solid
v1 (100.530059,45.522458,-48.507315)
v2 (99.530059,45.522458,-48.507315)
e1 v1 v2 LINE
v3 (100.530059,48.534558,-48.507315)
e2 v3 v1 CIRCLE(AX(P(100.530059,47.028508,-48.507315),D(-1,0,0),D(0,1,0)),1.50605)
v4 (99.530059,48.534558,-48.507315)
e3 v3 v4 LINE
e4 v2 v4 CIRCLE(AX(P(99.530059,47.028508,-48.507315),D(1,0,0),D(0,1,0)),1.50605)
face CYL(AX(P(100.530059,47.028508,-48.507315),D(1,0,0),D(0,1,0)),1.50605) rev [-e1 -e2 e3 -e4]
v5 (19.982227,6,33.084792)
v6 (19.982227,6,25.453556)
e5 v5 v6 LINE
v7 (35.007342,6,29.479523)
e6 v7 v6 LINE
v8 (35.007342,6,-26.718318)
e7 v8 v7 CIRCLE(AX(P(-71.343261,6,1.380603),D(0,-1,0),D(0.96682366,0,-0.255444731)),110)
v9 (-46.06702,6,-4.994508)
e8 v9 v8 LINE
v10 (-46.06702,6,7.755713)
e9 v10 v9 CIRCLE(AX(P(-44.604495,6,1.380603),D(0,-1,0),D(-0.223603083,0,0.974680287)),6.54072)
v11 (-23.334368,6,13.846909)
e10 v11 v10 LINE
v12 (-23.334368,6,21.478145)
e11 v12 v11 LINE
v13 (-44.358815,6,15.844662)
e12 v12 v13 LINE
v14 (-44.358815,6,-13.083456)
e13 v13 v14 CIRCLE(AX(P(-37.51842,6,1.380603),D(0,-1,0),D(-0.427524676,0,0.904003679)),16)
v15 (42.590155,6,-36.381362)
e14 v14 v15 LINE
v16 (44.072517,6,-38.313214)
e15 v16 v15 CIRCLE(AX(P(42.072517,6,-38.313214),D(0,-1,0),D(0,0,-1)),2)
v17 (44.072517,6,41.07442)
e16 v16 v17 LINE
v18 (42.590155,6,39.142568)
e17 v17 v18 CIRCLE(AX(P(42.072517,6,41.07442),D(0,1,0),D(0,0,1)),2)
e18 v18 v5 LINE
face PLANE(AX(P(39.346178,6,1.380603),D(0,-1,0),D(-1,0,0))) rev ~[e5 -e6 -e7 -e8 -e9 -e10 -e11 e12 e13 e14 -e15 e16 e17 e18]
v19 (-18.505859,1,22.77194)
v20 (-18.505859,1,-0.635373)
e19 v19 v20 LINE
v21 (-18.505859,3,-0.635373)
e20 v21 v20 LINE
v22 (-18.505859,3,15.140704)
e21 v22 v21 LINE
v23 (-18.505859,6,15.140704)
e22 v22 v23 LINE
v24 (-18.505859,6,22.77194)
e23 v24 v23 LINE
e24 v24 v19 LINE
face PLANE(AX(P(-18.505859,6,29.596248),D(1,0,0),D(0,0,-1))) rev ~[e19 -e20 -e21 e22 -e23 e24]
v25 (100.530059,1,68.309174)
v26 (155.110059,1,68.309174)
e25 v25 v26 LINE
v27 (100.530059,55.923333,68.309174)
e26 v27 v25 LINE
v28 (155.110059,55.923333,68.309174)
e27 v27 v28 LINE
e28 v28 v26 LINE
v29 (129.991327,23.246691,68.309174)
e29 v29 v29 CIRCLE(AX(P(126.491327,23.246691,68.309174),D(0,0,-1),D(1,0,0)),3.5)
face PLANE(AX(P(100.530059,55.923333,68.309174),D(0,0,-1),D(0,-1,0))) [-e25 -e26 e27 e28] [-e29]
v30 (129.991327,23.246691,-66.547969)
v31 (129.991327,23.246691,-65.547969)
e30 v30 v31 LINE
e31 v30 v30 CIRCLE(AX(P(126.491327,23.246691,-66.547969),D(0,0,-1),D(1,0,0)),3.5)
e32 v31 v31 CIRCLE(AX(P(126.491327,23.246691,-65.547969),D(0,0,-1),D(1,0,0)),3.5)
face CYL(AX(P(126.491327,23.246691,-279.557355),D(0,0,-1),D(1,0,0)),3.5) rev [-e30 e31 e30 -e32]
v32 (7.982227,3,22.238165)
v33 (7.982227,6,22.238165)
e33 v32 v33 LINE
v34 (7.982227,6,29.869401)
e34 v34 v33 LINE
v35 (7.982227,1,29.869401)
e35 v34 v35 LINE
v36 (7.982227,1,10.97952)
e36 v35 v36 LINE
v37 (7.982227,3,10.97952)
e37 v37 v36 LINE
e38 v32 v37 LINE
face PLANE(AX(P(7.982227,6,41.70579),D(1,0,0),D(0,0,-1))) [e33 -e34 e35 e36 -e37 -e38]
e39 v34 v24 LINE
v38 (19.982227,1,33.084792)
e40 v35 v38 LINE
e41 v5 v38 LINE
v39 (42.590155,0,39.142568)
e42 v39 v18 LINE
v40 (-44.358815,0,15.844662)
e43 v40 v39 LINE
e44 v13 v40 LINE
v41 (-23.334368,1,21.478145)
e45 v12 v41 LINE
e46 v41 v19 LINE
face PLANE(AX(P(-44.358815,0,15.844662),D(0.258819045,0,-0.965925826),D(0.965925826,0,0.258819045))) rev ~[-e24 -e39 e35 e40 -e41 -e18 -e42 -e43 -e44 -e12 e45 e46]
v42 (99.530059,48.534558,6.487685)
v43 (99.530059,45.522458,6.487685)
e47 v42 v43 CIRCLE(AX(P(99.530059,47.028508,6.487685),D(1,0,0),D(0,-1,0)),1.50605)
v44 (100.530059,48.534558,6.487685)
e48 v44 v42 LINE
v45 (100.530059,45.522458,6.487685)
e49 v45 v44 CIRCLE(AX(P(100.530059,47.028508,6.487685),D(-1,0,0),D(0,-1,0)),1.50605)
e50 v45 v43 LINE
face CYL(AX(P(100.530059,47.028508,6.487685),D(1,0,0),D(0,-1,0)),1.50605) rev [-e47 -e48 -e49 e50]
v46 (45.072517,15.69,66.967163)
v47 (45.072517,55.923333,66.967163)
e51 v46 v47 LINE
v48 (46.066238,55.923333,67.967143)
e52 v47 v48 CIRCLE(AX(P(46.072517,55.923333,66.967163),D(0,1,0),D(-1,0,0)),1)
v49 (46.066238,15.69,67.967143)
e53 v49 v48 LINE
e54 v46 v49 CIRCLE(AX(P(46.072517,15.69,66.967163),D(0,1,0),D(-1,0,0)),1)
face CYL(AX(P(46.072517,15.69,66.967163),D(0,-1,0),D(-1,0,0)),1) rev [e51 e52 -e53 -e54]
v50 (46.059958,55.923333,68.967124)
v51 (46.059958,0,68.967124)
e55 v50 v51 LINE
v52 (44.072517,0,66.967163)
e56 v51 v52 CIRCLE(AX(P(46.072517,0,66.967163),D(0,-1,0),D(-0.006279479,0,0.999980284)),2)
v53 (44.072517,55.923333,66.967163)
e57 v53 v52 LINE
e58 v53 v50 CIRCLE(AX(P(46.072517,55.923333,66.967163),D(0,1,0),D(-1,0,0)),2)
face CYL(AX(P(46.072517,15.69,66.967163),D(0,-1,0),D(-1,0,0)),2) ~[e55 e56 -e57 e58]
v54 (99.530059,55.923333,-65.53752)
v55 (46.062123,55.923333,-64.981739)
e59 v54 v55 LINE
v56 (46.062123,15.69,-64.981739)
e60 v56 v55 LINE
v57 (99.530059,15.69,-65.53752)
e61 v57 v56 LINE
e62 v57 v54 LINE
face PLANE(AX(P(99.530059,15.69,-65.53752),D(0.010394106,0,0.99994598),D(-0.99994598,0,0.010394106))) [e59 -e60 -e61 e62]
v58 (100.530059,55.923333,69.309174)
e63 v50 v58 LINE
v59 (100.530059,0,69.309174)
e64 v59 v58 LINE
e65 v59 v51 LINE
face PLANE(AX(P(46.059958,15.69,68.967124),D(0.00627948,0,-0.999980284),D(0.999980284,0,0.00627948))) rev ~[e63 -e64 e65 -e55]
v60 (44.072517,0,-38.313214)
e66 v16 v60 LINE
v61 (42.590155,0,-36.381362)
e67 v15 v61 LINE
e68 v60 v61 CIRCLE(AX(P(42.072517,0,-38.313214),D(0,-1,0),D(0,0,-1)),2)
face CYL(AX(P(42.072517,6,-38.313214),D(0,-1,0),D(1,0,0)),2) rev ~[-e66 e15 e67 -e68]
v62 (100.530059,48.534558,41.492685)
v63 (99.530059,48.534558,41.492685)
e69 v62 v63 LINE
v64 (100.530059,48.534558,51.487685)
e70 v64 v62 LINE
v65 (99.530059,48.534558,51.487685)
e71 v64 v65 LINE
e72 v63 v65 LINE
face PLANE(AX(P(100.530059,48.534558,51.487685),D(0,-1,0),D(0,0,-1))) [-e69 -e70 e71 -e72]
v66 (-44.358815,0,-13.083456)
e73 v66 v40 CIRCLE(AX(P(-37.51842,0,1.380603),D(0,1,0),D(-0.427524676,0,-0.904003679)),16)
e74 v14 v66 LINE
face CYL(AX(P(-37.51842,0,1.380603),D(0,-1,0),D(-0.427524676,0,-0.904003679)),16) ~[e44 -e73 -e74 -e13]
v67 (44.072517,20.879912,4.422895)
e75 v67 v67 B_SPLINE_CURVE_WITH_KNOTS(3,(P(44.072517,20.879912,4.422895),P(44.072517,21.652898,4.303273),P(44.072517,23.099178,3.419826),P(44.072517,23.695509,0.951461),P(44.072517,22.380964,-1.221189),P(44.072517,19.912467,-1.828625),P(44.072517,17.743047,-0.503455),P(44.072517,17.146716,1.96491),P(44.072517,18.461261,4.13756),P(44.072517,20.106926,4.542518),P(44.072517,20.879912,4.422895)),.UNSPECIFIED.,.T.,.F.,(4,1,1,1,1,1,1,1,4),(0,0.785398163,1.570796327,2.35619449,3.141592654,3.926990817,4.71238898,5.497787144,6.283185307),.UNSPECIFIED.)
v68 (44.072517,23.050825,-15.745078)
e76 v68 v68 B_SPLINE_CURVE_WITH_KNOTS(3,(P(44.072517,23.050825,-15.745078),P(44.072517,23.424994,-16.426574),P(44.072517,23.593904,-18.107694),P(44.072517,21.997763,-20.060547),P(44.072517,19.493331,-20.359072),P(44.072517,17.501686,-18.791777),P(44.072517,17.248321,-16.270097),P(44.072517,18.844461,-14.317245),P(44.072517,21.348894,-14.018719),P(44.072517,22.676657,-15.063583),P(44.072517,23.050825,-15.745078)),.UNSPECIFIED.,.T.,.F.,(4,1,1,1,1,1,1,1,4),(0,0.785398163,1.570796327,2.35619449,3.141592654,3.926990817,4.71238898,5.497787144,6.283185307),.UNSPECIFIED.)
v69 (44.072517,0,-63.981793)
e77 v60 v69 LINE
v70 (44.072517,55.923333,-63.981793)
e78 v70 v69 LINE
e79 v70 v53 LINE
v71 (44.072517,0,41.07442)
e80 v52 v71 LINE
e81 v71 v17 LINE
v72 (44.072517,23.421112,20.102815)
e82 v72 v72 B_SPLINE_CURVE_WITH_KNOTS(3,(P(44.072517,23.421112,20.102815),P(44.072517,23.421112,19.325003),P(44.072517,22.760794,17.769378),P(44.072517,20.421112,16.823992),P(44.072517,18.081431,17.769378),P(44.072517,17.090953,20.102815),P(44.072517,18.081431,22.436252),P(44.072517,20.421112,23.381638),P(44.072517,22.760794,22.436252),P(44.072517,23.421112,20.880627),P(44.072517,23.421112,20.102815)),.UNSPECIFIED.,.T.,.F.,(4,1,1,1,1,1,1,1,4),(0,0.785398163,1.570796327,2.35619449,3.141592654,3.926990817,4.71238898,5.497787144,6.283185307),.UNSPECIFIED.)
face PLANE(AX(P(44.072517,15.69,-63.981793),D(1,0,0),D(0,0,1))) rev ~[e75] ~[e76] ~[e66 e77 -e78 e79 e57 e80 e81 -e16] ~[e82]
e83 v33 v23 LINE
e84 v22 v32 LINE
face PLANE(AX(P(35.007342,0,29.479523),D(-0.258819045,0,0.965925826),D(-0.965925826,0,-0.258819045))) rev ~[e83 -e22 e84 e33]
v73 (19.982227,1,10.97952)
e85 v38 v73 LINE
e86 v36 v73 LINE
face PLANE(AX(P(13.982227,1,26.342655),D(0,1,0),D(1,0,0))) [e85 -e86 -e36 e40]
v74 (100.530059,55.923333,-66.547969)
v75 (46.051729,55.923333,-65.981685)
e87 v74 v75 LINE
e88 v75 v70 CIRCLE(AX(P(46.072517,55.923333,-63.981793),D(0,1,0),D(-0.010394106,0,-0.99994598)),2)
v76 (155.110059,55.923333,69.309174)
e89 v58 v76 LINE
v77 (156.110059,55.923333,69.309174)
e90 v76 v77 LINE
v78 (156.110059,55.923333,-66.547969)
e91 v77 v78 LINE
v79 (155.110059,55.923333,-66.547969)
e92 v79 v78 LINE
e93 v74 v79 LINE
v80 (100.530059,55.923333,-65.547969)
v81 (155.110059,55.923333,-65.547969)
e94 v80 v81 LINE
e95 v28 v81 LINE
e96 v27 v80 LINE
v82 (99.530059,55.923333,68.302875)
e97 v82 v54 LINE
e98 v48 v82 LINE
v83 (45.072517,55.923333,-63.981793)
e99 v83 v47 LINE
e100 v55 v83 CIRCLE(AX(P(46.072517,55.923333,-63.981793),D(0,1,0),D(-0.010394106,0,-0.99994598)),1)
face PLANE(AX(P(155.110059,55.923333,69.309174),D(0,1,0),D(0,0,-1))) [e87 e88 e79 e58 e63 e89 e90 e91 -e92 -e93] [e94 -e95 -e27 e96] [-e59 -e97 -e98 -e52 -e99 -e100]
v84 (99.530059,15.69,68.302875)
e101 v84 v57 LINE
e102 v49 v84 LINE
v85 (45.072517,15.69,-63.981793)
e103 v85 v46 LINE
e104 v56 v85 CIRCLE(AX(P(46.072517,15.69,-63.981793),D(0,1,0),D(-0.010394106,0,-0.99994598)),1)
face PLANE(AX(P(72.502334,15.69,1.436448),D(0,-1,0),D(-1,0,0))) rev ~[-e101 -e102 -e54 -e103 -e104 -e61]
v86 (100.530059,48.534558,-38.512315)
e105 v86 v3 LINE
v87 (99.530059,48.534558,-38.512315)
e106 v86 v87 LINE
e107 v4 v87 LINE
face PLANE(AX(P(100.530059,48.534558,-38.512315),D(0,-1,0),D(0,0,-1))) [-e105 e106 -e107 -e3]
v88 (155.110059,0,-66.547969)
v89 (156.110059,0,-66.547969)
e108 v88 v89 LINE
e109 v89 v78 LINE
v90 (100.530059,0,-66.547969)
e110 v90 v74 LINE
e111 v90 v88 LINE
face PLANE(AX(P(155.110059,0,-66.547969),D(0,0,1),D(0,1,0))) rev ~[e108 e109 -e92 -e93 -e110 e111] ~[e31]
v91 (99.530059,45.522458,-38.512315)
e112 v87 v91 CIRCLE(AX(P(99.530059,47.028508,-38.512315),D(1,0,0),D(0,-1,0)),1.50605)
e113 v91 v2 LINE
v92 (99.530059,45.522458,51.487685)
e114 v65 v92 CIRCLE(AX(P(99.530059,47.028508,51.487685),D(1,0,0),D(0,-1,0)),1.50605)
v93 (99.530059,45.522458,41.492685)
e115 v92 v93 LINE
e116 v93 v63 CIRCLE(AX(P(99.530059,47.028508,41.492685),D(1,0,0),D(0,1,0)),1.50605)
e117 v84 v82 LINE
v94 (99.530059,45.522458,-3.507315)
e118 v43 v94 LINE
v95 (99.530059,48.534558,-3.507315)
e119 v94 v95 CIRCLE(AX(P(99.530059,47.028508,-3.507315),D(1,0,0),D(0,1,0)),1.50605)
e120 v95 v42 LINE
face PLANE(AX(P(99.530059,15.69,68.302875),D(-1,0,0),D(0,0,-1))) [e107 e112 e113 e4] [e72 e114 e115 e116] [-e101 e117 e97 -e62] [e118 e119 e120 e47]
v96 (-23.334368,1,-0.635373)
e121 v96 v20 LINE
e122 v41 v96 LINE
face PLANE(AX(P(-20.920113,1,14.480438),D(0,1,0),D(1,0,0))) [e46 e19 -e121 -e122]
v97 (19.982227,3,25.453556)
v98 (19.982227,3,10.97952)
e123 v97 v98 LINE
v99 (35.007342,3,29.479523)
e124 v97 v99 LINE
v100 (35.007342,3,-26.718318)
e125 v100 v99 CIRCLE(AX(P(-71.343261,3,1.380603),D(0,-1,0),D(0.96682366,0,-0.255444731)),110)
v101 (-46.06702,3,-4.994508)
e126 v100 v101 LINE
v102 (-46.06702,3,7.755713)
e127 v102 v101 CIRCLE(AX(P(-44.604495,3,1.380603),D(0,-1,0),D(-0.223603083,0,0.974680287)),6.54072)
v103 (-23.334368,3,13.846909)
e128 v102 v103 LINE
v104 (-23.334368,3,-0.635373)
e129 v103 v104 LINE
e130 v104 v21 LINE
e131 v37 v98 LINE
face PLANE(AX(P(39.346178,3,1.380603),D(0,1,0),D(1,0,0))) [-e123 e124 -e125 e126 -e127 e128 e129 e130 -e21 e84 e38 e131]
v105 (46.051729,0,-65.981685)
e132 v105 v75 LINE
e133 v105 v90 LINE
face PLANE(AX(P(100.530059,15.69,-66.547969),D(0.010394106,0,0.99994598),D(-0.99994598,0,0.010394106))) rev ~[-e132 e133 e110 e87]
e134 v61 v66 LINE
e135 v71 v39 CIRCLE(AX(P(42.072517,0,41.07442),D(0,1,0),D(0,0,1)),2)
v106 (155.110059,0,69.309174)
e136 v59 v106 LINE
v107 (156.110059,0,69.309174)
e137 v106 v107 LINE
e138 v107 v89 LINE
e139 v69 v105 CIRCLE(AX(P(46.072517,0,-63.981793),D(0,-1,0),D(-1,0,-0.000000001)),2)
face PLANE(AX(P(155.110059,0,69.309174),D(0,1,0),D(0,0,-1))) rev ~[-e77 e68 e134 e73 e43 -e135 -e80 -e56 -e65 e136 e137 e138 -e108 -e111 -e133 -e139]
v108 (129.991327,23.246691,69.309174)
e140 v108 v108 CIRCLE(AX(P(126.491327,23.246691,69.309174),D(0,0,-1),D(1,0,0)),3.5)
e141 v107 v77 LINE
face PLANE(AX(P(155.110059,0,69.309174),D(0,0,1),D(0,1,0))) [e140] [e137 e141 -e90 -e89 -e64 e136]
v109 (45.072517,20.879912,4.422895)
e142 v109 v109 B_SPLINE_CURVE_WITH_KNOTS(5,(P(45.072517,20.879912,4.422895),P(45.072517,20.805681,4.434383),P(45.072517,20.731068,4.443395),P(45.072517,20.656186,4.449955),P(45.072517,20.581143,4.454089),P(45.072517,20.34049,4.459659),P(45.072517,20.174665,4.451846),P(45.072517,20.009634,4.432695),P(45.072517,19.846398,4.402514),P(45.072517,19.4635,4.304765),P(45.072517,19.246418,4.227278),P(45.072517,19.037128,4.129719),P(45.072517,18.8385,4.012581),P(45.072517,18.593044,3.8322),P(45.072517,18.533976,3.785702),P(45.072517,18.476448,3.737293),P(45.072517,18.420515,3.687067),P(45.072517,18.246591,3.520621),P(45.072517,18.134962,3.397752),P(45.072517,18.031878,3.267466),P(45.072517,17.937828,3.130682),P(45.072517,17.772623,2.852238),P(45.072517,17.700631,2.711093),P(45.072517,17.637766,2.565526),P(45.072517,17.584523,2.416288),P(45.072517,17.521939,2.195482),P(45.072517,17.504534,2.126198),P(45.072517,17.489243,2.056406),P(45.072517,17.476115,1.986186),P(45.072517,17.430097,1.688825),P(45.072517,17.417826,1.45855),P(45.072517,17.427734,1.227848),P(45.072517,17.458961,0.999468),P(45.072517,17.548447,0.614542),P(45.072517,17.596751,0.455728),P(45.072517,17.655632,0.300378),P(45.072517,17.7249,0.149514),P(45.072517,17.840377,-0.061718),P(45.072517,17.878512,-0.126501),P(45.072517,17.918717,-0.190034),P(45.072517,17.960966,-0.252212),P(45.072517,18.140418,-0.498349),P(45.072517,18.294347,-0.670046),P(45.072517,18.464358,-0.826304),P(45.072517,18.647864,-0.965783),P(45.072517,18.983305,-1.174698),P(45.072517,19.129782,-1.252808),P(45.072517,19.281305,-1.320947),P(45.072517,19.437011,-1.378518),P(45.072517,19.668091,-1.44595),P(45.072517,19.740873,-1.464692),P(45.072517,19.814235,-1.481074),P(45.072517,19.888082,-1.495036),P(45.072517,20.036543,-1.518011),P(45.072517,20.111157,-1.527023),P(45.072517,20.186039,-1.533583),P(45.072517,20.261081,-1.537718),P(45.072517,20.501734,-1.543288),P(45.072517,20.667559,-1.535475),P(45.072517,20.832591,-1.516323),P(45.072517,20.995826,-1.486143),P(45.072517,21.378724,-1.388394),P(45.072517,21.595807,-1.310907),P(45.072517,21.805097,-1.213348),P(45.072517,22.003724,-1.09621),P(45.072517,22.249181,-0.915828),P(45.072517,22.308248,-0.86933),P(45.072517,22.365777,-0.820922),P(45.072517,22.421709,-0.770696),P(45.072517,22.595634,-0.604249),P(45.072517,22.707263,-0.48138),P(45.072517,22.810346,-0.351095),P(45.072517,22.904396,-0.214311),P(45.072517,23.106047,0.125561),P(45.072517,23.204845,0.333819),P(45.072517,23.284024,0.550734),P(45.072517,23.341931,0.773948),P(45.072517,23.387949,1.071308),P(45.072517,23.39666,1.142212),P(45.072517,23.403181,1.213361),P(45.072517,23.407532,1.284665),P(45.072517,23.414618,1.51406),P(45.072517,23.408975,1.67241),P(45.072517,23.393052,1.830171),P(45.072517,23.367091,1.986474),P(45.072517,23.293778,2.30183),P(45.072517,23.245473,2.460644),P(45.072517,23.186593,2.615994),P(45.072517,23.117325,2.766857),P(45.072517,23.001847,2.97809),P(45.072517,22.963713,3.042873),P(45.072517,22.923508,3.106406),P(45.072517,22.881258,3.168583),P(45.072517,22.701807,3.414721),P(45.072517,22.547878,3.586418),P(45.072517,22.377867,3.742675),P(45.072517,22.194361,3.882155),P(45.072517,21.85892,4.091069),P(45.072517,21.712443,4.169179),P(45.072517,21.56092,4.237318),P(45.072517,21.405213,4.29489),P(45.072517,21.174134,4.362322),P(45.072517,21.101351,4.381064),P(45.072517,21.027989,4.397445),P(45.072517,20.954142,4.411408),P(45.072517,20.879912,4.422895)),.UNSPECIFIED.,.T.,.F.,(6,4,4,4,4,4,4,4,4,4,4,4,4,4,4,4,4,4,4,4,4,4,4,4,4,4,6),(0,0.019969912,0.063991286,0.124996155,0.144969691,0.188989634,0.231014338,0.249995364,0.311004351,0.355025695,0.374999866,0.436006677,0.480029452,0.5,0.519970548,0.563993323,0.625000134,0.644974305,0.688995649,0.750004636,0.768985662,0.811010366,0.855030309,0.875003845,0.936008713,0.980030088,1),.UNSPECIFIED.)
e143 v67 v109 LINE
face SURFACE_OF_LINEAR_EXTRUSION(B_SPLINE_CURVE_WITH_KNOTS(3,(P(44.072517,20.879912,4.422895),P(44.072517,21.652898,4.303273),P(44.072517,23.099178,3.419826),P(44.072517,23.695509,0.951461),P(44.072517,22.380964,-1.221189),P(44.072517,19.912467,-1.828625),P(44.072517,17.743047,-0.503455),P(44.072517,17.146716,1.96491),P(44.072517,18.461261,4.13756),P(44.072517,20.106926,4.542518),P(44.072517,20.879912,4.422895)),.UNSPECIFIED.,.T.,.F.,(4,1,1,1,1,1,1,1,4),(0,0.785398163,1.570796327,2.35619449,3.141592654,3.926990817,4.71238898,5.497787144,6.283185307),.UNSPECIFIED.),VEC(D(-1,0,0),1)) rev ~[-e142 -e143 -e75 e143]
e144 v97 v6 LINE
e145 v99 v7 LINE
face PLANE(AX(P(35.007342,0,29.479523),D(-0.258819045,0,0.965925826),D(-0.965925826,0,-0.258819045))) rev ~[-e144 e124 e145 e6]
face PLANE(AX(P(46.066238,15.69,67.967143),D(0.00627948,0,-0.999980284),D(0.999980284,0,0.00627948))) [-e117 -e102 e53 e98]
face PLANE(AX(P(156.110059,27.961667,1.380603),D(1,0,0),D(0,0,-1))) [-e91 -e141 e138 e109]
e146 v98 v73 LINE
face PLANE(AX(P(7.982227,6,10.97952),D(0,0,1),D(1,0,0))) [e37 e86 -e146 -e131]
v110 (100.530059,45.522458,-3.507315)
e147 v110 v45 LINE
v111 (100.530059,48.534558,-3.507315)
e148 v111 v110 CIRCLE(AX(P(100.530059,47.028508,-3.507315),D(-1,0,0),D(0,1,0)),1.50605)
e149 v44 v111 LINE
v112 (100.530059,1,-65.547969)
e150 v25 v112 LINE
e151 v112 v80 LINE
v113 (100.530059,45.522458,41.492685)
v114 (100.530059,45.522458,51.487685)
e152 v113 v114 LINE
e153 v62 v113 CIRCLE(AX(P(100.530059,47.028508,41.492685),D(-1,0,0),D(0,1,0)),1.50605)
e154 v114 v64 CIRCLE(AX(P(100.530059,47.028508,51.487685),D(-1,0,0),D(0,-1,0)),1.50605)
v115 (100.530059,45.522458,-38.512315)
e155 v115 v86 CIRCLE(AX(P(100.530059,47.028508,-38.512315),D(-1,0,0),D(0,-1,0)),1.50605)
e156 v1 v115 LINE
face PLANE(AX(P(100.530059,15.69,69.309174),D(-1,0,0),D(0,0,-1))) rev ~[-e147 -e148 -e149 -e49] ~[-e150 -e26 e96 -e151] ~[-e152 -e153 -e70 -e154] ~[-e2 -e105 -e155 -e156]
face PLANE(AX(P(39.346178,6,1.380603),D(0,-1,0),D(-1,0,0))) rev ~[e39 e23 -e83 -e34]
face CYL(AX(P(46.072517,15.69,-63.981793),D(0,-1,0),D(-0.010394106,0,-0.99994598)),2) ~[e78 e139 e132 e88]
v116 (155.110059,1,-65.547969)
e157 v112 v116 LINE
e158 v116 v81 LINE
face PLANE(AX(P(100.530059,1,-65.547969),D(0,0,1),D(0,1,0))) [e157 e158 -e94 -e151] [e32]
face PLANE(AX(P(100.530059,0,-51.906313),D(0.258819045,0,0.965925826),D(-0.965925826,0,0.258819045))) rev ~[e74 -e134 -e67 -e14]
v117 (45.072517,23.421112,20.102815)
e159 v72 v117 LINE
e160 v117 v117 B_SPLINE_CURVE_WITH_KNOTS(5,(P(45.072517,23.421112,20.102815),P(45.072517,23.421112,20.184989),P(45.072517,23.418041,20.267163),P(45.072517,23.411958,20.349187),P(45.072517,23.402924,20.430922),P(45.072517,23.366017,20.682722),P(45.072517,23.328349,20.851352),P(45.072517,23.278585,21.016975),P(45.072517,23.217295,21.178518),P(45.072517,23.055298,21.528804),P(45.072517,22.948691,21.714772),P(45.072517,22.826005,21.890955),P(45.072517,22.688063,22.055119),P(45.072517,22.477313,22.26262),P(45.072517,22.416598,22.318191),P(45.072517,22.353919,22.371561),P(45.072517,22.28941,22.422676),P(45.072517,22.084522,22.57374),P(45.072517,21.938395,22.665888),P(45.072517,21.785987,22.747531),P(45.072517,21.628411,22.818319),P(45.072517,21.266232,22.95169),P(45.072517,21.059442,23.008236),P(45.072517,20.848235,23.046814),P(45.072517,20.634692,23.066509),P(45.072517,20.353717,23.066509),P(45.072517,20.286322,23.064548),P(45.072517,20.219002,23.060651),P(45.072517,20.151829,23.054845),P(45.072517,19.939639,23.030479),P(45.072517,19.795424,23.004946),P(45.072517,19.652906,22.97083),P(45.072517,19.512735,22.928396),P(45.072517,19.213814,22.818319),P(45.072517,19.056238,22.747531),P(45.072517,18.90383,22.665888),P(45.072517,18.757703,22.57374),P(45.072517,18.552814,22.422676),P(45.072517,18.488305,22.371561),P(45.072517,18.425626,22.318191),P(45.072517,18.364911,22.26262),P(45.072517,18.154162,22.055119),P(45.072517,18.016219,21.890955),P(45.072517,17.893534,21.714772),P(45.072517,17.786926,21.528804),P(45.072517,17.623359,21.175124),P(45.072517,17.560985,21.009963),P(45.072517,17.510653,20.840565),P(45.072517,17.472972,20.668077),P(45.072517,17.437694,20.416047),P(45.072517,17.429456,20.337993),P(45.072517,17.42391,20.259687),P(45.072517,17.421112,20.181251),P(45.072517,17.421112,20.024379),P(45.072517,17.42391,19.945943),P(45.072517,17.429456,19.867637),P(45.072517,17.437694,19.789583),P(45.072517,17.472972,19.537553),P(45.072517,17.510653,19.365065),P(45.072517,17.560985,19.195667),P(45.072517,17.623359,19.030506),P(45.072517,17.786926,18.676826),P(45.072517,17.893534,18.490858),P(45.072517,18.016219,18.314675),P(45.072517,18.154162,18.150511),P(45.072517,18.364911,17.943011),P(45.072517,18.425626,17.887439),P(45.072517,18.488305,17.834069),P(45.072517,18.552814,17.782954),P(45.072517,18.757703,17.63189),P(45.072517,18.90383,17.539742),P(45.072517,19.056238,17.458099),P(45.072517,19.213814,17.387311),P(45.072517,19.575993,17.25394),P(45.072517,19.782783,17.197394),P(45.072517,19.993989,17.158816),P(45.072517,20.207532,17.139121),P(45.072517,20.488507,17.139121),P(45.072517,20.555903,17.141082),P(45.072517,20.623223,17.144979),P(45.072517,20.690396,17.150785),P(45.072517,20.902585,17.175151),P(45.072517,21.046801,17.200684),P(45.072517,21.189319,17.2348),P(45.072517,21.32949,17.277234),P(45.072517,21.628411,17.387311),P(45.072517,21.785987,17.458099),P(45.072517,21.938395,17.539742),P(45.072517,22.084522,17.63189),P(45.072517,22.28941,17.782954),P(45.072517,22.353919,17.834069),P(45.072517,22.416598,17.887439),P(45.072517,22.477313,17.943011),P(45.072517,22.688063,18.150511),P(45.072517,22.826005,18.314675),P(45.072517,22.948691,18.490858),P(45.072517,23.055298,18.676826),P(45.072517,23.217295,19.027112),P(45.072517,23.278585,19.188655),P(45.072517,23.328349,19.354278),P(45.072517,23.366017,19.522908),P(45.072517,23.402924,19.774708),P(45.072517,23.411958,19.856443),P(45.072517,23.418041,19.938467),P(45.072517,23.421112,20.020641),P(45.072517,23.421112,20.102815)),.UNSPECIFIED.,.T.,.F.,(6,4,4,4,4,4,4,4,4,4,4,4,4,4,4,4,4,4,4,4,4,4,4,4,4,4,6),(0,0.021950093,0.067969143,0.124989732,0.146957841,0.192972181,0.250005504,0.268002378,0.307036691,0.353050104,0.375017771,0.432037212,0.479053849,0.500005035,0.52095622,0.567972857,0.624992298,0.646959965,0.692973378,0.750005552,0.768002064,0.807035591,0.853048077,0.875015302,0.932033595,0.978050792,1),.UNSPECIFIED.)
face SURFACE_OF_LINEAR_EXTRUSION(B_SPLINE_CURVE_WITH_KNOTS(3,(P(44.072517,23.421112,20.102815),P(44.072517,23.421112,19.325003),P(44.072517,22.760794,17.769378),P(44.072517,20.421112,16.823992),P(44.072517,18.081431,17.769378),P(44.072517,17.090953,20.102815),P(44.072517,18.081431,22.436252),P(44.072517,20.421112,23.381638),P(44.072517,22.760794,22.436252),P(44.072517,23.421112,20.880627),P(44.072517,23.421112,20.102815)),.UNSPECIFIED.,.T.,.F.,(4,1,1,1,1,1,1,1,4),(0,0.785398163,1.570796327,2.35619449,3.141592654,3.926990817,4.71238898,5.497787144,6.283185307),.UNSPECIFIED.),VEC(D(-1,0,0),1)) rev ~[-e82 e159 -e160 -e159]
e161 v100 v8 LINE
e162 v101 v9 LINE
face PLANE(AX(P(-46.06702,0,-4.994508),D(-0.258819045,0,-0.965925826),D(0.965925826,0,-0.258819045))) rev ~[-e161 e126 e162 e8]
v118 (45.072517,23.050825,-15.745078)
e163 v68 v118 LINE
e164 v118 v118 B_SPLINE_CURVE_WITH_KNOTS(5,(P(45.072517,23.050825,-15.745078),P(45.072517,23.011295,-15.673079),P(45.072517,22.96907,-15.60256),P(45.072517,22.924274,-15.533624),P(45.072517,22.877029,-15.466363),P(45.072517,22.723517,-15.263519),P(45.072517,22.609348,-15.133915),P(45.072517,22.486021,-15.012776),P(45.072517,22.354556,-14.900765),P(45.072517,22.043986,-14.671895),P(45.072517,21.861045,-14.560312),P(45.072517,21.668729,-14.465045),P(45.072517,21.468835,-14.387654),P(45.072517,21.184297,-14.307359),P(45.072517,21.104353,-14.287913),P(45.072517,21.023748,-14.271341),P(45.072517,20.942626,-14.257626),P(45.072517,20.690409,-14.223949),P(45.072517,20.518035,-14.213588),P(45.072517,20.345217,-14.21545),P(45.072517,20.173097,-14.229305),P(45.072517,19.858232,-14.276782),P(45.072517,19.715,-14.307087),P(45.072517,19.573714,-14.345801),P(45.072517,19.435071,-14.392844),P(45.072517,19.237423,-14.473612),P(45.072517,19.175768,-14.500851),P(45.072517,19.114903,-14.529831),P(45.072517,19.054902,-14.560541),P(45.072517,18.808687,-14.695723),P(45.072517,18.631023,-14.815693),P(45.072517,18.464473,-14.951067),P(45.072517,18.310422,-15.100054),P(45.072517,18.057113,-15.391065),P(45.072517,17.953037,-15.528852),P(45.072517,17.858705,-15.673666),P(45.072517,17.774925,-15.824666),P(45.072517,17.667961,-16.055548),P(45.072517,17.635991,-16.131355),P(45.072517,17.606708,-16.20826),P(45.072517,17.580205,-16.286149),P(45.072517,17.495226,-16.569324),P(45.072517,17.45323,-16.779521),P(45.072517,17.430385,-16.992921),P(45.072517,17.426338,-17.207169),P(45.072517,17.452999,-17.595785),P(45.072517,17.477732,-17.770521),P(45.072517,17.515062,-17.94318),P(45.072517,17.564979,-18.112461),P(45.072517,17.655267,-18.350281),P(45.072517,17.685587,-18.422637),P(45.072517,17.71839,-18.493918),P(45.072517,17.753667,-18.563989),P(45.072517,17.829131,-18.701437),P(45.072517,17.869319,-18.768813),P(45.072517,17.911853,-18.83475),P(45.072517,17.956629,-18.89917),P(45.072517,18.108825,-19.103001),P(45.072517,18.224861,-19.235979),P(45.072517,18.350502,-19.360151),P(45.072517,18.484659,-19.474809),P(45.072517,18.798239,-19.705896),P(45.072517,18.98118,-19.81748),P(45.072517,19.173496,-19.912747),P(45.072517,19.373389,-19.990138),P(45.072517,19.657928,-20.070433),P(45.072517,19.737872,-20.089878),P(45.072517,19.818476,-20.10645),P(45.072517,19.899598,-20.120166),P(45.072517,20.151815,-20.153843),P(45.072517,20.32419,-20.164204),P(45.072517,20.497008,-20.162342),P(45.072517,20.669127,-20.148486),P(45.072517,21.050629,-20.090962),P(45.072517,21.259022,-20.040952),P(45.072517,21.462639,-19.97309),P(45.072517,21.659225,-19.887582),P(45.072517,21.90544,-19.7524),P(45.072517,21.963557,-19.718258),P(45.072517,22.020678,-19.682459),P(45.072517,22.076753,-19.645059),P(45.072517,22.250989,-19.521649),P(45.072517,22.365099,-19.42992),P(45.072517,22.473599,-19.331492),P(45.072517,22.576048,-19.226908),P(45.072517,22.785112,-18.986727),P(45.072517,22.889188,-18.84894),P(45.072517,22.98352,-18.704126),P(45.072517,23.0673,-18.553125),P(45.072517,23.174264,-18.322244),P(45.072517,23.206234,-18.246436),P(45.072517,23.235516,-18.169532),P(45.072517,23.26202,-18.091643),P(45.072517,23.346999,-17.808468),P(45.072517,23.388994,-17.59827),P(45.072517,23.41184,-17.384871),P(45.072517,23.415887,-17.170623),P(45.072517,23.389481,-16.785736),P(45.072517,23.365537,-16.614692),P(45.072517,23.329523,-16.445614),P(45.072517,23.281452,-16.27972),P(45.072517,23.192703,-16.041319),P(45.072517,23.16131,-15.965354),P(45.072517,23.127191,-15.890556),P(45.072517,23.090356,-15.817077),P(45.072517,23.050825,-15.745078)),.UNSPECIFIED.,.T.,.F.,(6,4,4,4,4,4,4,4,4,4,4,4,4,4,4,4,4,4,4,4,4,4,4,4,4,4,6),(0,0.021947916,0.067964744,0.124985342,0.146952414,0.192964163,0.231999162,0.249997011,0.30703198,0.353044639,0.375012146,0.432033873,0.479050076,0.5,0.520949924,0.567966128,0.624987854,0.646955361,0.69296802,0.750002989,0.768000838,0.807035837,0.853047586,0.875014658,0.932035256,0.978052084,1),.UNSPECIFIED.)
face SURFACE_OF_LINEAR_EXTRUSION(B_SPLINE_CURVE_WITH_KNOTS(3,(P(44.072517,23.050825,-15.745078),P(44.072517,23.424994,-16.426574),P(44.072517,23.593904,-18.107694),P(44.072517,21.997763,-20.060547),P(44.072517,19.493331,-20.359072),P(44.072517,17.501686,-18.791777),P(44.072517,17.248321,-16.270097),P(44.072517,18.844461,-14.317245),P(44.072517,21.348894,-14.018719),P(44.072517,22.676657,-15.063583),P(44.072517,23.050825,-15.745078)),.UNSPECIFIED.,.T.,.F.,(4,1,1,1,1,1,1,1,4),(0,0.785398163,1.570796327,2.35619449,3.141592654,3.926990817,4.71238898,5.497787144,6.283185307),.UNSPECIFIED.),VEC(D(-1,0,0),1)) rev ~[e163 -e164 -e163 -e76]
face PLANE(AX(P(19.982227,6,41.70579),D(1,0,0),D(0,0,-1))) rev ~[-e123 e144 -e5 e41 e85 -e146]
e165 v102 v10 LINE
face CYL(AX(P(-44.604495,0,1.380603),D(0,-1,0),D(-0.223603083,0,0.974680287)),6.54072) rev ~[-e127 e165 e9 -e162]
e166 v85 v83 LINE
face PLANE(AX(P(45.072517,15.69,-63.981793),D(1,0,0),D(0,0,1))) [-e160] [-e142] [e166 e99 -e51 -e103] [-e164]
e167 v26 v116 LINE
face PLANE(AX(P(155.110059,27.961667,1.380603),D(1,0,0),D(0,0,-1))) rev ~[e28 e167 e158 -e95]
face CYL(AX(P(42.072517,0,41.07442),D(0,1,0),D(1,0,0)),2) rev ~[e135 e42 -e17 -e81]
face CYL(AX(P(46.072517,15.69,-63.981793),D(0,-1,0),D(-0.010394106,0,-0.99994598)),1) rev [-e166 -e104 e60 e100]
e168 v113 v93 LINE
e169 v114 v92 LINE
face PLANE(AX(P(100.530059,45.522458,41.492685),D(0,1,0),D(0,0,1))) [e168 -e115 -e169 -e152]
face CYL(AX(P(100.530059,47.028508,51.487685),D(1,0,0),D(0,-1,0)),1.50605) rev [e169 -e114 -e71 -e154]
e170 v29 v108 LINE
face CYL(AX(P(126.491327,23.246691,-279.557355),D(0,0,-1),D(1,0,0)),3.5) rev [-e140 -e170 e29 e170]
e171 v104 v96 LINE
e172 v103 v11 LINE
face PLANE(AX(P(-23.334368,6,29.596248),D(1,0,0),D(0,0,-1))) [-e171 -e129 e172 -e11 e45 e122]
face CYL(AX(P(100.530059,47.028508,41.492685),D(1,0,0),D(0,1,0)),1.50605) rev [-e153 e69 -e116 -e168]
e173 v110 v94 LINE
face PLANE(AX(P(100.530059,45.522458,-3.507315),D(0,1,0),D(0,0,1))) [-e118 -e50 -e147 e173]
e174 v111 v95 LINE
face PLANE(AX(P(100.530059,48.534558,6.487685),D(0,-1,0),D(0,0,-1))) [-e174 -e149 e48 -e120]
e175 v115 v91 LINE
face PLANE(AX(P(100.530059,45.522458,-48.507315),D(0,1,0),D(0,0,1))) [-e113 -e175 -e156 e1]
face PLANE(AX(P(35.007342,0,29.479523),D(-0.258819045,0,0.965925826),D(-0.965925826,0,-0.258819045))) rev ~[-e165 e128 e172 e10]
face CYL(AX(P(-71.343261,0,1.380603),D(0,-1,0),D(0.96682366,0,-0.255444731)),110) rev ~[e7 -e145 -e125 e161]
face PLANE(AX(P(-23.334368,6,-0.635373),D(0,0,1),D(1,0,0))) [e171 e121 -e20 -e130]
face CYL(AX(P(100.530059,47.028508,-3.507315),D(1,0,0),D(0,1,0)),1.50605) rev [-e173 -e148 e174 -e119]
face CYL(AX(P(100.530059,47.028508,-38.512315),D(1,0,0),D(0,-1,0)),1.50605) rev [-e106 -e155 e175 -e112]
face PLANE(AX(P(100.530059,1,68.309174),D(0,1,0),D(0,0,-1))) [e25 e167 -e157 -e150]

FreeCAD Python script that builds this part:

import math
import FreeCAD as App
import Part
import Sketcher
from FreeCAD import Vector
Q = App.Units.Quantity


def edges_at(feature, points):
    """Names of the edges that pass closest to the given points."""
    edges = feature.Shape.Edges
    near = lambda p: min(range(len(edges)), key=lambda i: edges[i].distToShape(Part.Vertex(*p))[0])
    return sorted({f"Edge{near(p) + 1}" for p in points})


def add_polygon(sketch, points):
    """Adds a closed chain of lines whose ends are joined by coincident constraints."""
    first, n = sketch.GeometryCount, len(points)
    for a, b in zip(points, points[1:] + points[:1]):
        sketch.addGeometry(Part.LineSegment(App.Vector(*a, 0), App.Vector(*b, 0)), False)
    for i in range(n):
        sketch.addConstraint(Sketcher.Constraint("Coincident", first + i, 2, first + (i + 1) % n, 1))

doc = App.newDocument("Part")
body = doc.addObject("PartDesign::Body", "Body")

sketch1 = body.newObject("Sketcher::SketchObject", "Sketch")
sketch1.AttachmentSupport = (doc.getObject("XZ_Plane"), [""])
sketch1.MapMode = "FlatFace"
sketch1.addGeometry(Part.LineSegment(Vector(-44, 16, 0), Vector(101, 55, 0)), False)
sketch1.addGeometry(Part.LineSegment(Vector(101, 55, 0), Vector(101, -52, 0)), False)
sketch1.addGeometry(Part.LineSegment(Vector(101, -52, 0), Vector(-44, -13, 0)), False)
sketch1.addGeometry(Part.ArcOfCircle(Part.Circle(Vector(-38, 1, 0), Vector(0, 0, 1), 16), math.radians(115), math.radians(245)), False)
sketch1.addConstraint(Sketcher.Constraint("Coincident", 0, 2, 1, 1))
sketch1.addConstraint(Sketcher.Constraint("Coincident", 1, 2, 2, 1))
sketch1.addConstraint(Sketcher.Constraint("Coincident", 2, 2, 3, 2))
sketch1.addConstraint(Sketcher.Constraint("Coincident", 3, 1, 0, 1))
sketch1.addConstraint(Sketcher.Constraint("Vertical", 1))
sketch1.addConstraint(Sketcher.Constraint("Vertical", 2, 2, 3, 1))
sketch1.addConstraint(Sketcher.Constraint("Equal", 0, 2))
sketch1.addConstraint(Sketcher.Constraint("Radius", 3, Q("16 mm")))
sketch1.addConstraint(Sketcher.Constraint("Angle", 0, Q("15 deg")))
sketch1.addConstraint(Sketcher.Constraint("Distance", 0, Q("150 mm")))
sketch1.addConstraint(Sketcher.Constraint("DistanceY", 1, 2, 1, 1, Q("106.573831 mm")))
sketch1.addConstraint(Sketcher.Constraint("DistanceX", 3, 3, -1, 1, Q("37.51842 mm")))
sketch1.addConstraint(Sketcher.Constraint("DistanceY", -1, 1, 0, 2, Q("54.667518 mm")))
pad1 = body.newObject("PartDesign::Pad", "Pad")
pad1.Profile = sketch1
pad1.Length = 3
pad1.Reversed = True

sketch2 = body.newObject("Sketcher::SketchObject", "Sketch001")
sketch2.AttachmentSupport = (doc.getObject("XZ_Plane"), [""])
sketch2.MapMode = "FlatFace"
sketch2.addGeometry(Part.LineSegment(Vector(101, -52, 0), Vector(-44, -13, 0)), False)
sketch2.addGeometry(Part.ArcOfCircle(Part.Circle(Vector(-38, 1, 0), Vector(0, 0, 1), 16), math.radians(115), math.radians(245)), False)
sketch2.addGeometry(Part.LineSegment(Vector(-44, 16, 0), Vector(101, 55, 0)), False)
sketch2.addGeometry(Part.LineSegment(Vector(101, 55, 0), Vector(101, -52, 0)), False)
sketch2.addGeometry(Part.LineSegment(Vector(-46, -5, 0), Vector(35, -27, 0)), False)
sketch2.addGeometry(Part.ArcOfCircle(Part.Circle(Vector(-71, 1, 0), Vector(0, 0, 1), 110), math.radians(-15), math.radians(15)), False)
sketch2.addGeometry(Part.LineSegment(Vector(35, 29, 0), Vector(-46, 8, 0)), False)
sketch2.addGeometry(Part.ArcOfCircle(Part.Circle(Vector(-45, 1, 0), Vector(0, 0, 1), 7), math.radians(103), math.radians(257)), False)
sketch2.addConstraint(Sketcher.Constraint("Coincident", 0, 2, 1, 2))
sketch2.addConstraint(Sketcher.Constraint("Coincident", 1, 1, 2, 1))
sketch2.addConstraint(Sketcher.Constraint("Coincident", 2, 2, 3, 1))
sketch2.addConstraint(Sketcher.Constraint("Coincident", 3, 2, 0, 1))
sketch2.addConstraint(Sketcher.Constraint("Coincident", 4, 2, 5, 1))
sketch2.addConstraint(Sketcher.Constraint("Coincident", 5, 2, 6, 1))
sketch2.addConstraint(Sketcher.Constraint("Coincident", 6, 2, 7, 1))
sketch2.addConstraint(Sketcher.Constraint("Coincident", 7, 2, 4, 1))
sketch2.addConstraint(Sketcher.Constraint("Vertical", 3))
sketch2.addConstraint(Sketcher.Constraint("Parallel", 0, 4))
sketch2.addConstraint(Sketcher.Constraint("Parallel", 2, 6))
sketch2.addConstraint(Sketcher.Constraint("Horizontal", 1, 3, 5, 3))
sketch2.addConstraint(Sketcher.Constraint("Horizontal", 5, 3, 7, 3))
sketch2.addConstraint(Sketcher.Constraint("Vertical", 0, 2, 1, 1))
sketch2.addConstraint(Sketcher.Constraint("Vertical", 4, 2, 5, 2))
sketch2.addConstraint(Sketcher.Constraint("Vertical", 6, 2, 7, 2))
sketch2.addConstraint(Sketcher.Constraint("Radius", 1, Q("16 mm")))
sketch2.addConstraint(Sketcher.Constraint("Radius", 5, Q("110 mm")))
sketch2.addConstraint(Sketcher.Constraint("Angle", 0, Q("165 deg")))
sketch2.addConstraint(Sketcher.Constraint("Distance", 0, Q("150 mm")))
sketch2.addConstraint(Sketcher.Constraint("Radius", 7, Q("6.54072 mm")))
sketch2.addConstraint(Sketcher.Constraint("DistanceY", 3, 2, 3, 1, Q("106.573831 mm")))
sketch2.addConstraint(Sketcher.Constraint("DistanceX", 6, 2, 1, 3, Q("8.548601 mm")))
sketch2.addConstraint(Sketcher.Constraint("DistanceX", 1, 3, -1, 1, Q("37.51842 mm")))
sketch2.addConstraint(Sketcher.Constraint("DistanceX", 5, 3, -1, 1, Q("71.343261 mm")))
sketch2.addConstraint(Sketcher.Constraint("DistanceY", -1, 1, 1, 1, Q("15.844662 mm")))
sketch2.addConstraint(Sketcher.Constraint("DistanceX", -1, 1, 4, 2, Q("35.007342 mm")))
pad2 = body.newObject("PartDesign::Pad", "Pad001")
pad2.Profile = sketch2
pad2.Length = 6
pad2.Reversed = True

sketch3 = body.newObject("Sketcher::SketchObject", "Sketch002")
sketch3.AttachmentSupport = (doc.getObject("XZ_Plane"), [""])
sketch3.MapMode = "FlatFace"
sketch3.AttachmentOffset = App.Placement(Vector(0, 0, -6), App.Rotation())
sketch3.addGeometry(Part.LineSegment(Vector(44.1, -64, 0), Vector(44.1, 67, 0)), False)
sketch3.addGeometry(Part.ArcOfCircle(Part.Circle(Vector(46.1, 67, 0), Vector(0, 0, 1), 2), math.radians(90), math.radians(180)), False)
sketch3.addGeometry(Part.LineSegment(Vector(46.1, 69, 0), Vector(100.5, 69.3, 0)), False)
sketch3.addGeometry(Part.LineSegment(Vector(100.5, 69.3, 0), Vector(100.5, -66.5, 0)), False)
sketch3.addGeometry(Part.LineSegment(Vector(100.5, -66.5, 0), Vector(46.1, -66, 0)), False)
sketch3.addGeometry(Part.ArcOfCircle(Part.Circle(Vector(46.1, -64, 0), Vector(0, 0, 1), 2), math.radians(-180), math.radians(-91)), False)
sketch3.addConstraint(Sketcher.Constraint("Tangent", 0, 2, 1, 2))
sketch3.addConstraint(Sketcher.Constraint("Tangent", 1, 1, 2, 1))
sketch3.addConstraint(Sketcher.Constraint("Coincident", 2, 2, 3, 1))
sketch3.addConstraint(Sketcher.Constraint("Coincident", 3, 2, 4, 1))
sketch3.addConstraint(Sketcher.Constraint("Tangent", 4, 2, 5, 2))
sketch3.addConstraint(Sketcher.Constraint("Tangent", 5, 1, 0, 1))
sketch3.addConstraint(Sketcher.Constraint("Vertical", 0))
sketch3.addConstraint(Sketcher.Constraint("Vertical", 3))
sketch3.addConstraint(Sketcher.Constraint("Equal", 1, 5))
sketch3.addConstraint(Sketcher.Constraint("Radius", 1, Q("2 mm")))
sketch3.addConstraint(Sketcher.Constraint("DistanceX", 1, 1, 2, 2, Q("54.470101 mm")))
sketch3.addConstraint(Sketcher.Constraint("DistanceY", 0, 1, 0, 2, Q("130.948956 mm")))
sketch3.addConstraint(Sketcher.Constraint("DistanceY", 3, 2, 3, 1, Q("135.857143 mm")))
sketch3.addConstraint(Sketcher.Constraint("DistanceX", -1, 1, 1, 1, Q("46.059958 mm")))
sketch3.addConstraint(Sketcher.Constraint("DistanceY", 3, 2, -1, 1, Q("66.547969 mm")))
sketch3.addConstraint(Sketcher.Constraint("DistanceX", -1, 1, 4, 2, Q("46.051729 mm")))
pad3 = body.newObject("PartDesign::Pad", "Pad002")
pad3.Profile = sketch3
pad3.Type = "TwoLengths"
pad3.Length = 9.69
pad3.Length2 = 6
pad3.Reversed = True
doc.recompute()

fillet = body.newObject("PartDesign::Fillet", "Fillet")
fillet.Base = (pad3, edges_at(pad3, [(44.073, 3, 39.54)]))
fillet.Radius = 2
doc.recompute()

fillet2 = body.newObject("PartDesign::Fillet", "Fillet001")
fillet2.Base = (fillet, edges_at(fillet, [(44.073, 3, -36.779)]))
fillet2.Radius = 2

sketch4 = body.newObject("Sketcher::SketchObject", "Sketch003")
sketch4.AttachmentSupport = (doc.getObject("XZ_Plane"), [""])
sketch4.MapMode = "FlatFace"
sketch4.AttachmentOffset = App.Placement(Vector(0, 0, -15.69), App.Rotation())
sketch4.addGeometry(Part.LineSegment(Vector(46.1, 69, 0), Vector(100.5, 69.3, 0)), False)
sketch4.addGeometry(Part.LineSegment(Vector(100.5, 69.3, 0), Vector(100.5, -66.5, 0)), False)
sketch4.addGeometry(Part.LineSegment(Vector(100.5, -66.5, 0), Vector(46.1, -66, 0)), False)
sketch4.addGeometry(Part.ArcOfCircle(Part.Circle(Vector(46.1, -64, 0), Vector(0, 0, 1), 2), math.radians(-180), math.radians(-91)), False)
sketch4.addGeometry(Part.LineSegment(Vector(44.1, -64, 0), Vector(44.1, 67, 0)), False)
sketch4.addGeometry(Part.ArcOfCircle(Part.Circle(Vector(46.1, 67, 0), Vector(0, 0, 1), 2), math.radians(90), math.radians(180)), False)
sketch4.addGeometry(Part.LineSegment(Vector(99.5, -65.5, 0), Vector(99.5, 68.3, 0)), False)
sketch4.addGeometry(Part.LineSegment(Vector(99.5, 68.3, 0), Vector(46.1, 68, 0)), False)
sketch4.addGeometry(Part.ArcOfCircle(Part.Circle(Vector(46.1, 67, 0), Vector(0, 0, 1), 1), math.radians(90), math.radians(180)), False)
sketch4.addGeometry(Part.LineSegment(Vector(45.1, 67, 0), Vector(45.1, -64, 0)), False)
sketch4.addGeometry(Part.ArcOfCircle(Part.Circle(Vector(46.1, -64, 0), Vector(0, 0, 1), 1), math.radians(-180), math.radians(-91)), False)
sketch4.addGeometry(Part.LineSegment(Vector(46.1, -65, 0), Vector(99.5, -65.5, 0)), False)
sketch4.addConstraint(Sketcher.Constraint("Coincident", 0, 2, 1, 1))
sketch4.addConstraint(Sketcher.Constraint("Coincident", 1, 2, 2, 1))
sketch4.addConstraint(Sketcher.Constraint("Tangent", 2, 2, 3, 2))
sketch4.addConstraint(Sketcher.Constraint("Tangent", 3, 1, 4, 1))
sketch4.addConstraint(Sketcher.Constraint("Tangent", 4, 2, 5, 2))
sketch4.addConstraint(Sketcher.Constraint("Tangent", 5, 1, 0, 1))
sketch4.addConstraint(Sketcher.Constraint("Coincident", 6, 2, 7, 1))
sketch4.addConstraint(Sketcher.Constraint("Tangent", 7, 2, 8, 1))
sketch4.addConstraint(Sketcher.Constraint("Tangent", 8, 2, 9, 1))
sketch4.addConstraint(Sketcher.Constraint("Tangent", 9, 2, 10, 1))
sketch4.addConstraint(Sketcher.Constraint("Tangent", 10, 2, 11, 1))
sketch4.addConstraint(Sketcher.Constraint("Coincident", 11, 2, 6, 1))
sketch4.addConstraint(Sketcher.Constraint("Vertical", 1))
sketch4.addConstraint(Sketcher.Constraint("Vertical", 4))
sketch4.addConstraint(Sketcher.Constraint("Vertical", 6))
sketch4.addConstraint(Sketcher.Constraint("Vertical", 9))
sketch4.addConstraint(Sketcher.Constraint("Coincident", 8, 3, 5, 3))
sketch4.addConstraint(Sketcher.Constraint("Coincident", 10, 3, 3, 3))
sketch4.addConstraint(Sketcher.Constraint("Equal", 3, 5))
sketch4.addConstraint(Sketcher.Constraint("Parallel", 0, 7))
sketch4.addConstraint(Sketcher.Constraint("Parallel", 2, 11))
sketch4.addConstraint(Sketcher.Constraint("Radius", 3, Q("2 mm")))
sketch4.addConstraint(Sketcher.Constraint("Radius", 8, Q("1 mm")))
sketch4.addConstraint(Sketcher.Constraint("DistanceX", 6, 2, 0, 2, Q("1 mm")))
sketch4.addConstraint(Sketcher.Constraint("DistanceX", 5, 1, 0, 2, Q("54.470101 mm")))
sketch4.addConstraint(Sketcher.Constraint("DistanceY", 6, 2, 0, 2, Q("1.006299 mm")))
sketch4.addConstraint(Sketcher.Constraint("DistanceY", 1, 2, 1, 1, Q("135.857143 mm")))
sketch4.addConstraint(Sketcher.Constraint("DistanceY", 4, 1, 4, 2, Q("130.948956 mm")))
sketch4.addConstraint(Sketcher.Constraint("DistanceX", -1, 1, 0, 2, Q("100.530059 mm")))
sketch4.addConstraint(Sketcher.Constraint("DistanceY", 1, 2, -1, 1, Q("66.547969 mm")))
pad4 = body.newObject("PartDesign::Pad", "Pad003")
pad4.Profile = sketch4
pad4.Length = 40.233333
pad4.Reversed = True

sketch5 = body.newObject("Sketcher::SketchObject", "Sketch004")
sketch5.AttachmentSupport = (doc.getObject("YZ_Plane"), [""])
sketch5.MapMode = "FlatFace"
sketch5.AttachmentOffset = App.Placement(Vector(0, 0, 44.072517), App.Rotation())
sketch5.addGeometry(Part.BSplineCurve([Vector(23.050825, -15.745078, 0), Vector(23.424994, -16.426574, 0), Vector(23.593904, -18.107694, 0), Vector(21.997763, -20.060547, 0), Vector(19.493331, -20.359072, 0), Vector(17.501686, -18.791777, 0), Vector(17.248321, -16.270097, 0), Vector(18.844461, -14.317245, 0), Vector(21.348894, -14.018719, 0), Vector(22.676657, -15.063583, 0), Vector(23.050825, -15.745078, 0)], [4, 1, 1, 1, 1, 1, 1, 1, 4], [0, 0.785398163, 1.570796327, 2.35619449, 3.141592654, 3.926990817, 4.71238898, 5.497787144, 6.283185307], False, 3, [1, 1, 1, 1, 1, 1, 1, 1, 1, 1, 1], False), False)
sketch5.addGeometry(Part.BSplineCurve([Vector(20.879912, 4.422895, 0), Vector(21.652898, 4.303273, 0), Vector(23.099178, 3.419826, 0), Vector(23.695509, 0.951461, 0), Vector(22.380964, -1.221189, 0), Vector(19.912467, -1.828625, 0), Vector(17.743047, -0.503455, 0), Vector(17.146716, 1.96491, 0), Vector(18.461261, 4.13756, 0), Vector(20.106926, 4.542518, 0), Vector(20.879912, 4.422895, 0)], [4, 1, 1, 1, 1, 1, 1, 1, 4], [0, 0.785398163, 1.570796327, 2.35619449, 3.141592654, 3.926990817, 4.71238898, 5.497787144, 6.283185307], False, 3, [1, 1, 1, 1, 1, 1, 1, 1, 1, 1, 1], False), False)
sketch5.addGeometry(Part.BSplineCurve([Vector(23.421112, 20.102815, 0), Vector(23.421112, 19.325003, 0), Vector(22.760794, 17.769378, 0), Vector(20.421112, 16.823992, 0), Vector(18.081431, 17.769378, 0), Vector(17.090953, 20.102815, 0), Vector(18.081431, 22.436252, 0), Vector(20.421112, 23.381638, 0), Vector(22.760794, 22.436252, 0), Vector(23.421112, 20.880627, 0), Vector(23.421112, 20.102815, 0)], [4, 1, 1, 1, 1, 1, 1, 1, 4], [0, 0.785398163, 1.570796327, 2.35619449, 3.141592654, 3.926990817, 4.71238898, 5.497787144, 6.283185307], False, 3, [1, 1, 1, 1, 1, 1, 1, 1, 1, 1, 1], False), False)
sketch5.addConstraint(Sketcher.Constraint("Block", 0))
sketch5.addConstraint(Sketcher.Constraint("Block", 1))
sketch5.addConstraint(Sketcher.Constraint("Block", 2))
pocket1 = body.newObject("PartDesign::Pocket", "Pocket")
pocket1.Profile = sketch5
pocket1.Length = 1.5
pocket1.Reversed = True

sketch6 = body.newObject("Sketcher::SketchObject", "Sketch005")
sketch6.AttachmentSupport = (doc.getObject("YZ_Plane"), [""])
sketch6.MapMode = "FlatFace"
sketch6.AttachmentOffset = App.Placement(Vector(0, 0, 100.530059), App.Rotation())
sketch6.addGeometry(Part.LineSegment(Vector(48.5, 41.5, 0), Vector(48.5, 51.5, 0)), False)
sketch6.addGeometry(Part.ArcOfCircle(Part.Circle(Vector(47, 51.5, 0), Vector(0, 0, 1), 1.5), math.radians(0), math.radians(180)), False)
sketch6.addGeometry(Part.LineSegment(Vector(45.5, 51.5, 0), Vector(45.5, 41.5, 0)), False)
sketch6.addGeometry(Part.ArcOfCircle(Part.Circle(Vector(47, 41.5, 0), Vector(0, 0, 1), 1.5), math.radians(180), math.radians(360)), False)
sketch6.addGeometry(Part.LineSegment(Vector(48.5, -3.5, 0), Vector(48.5, 6.5, 0)), False)
sketch6.addGeometry(Part.ArcOfCircle(Part.Circle(Vector(47, 6.5, 0), Vector(0, 0, 1), 1.5), math.radians(0), math.radians(180)), False)
sketch6.addGeometry(Part.LineSegment(Vector(45.5, 6.5, 0), Vector(45.5, -3.5, 0)), False)
sketch6.addGeometry(Part.ArcOfCircle(Part.Circle(Vector(47, -3.5, 0), Vector(0, 0, 1), 1.5), math.radians(-180), math.radians(0)), False)
sketch6.addGeometry(Part.LineSegment(Vector(48.5, -48.5, 0), Vector(48.5, -38.5, 0)), False)
sketch6.addGeometry(Part.ArcOfCircle(Part.Circle(Vector(47, -38.5, 0), Vector(0, 0, 1), 1.5), math.radians(0), math.radians(180)), False)
sketch6.addGeometry(Part.LineSegment(Vector(45.5, -38.5, 0), Vector(45.5, -48.5, 0)), False)
sketch6.addGeometry(Part.ArcOfCircle(Part.Circle(Vector(47, -48.5, 0), Vector(0, 0, 1), 1.5), math.radians(180), math.radians(360)), False)
sketch6.addConstraint(Sketcher.Constraint("Tangent", 0, 2, 1, 1))
sketch6.addConstraint(Sketcher.Constraint("Tangent", 1, 2, 2, 1))
sketch6.addConstraint(Sketcher.Constraint("Tangent", 2, 2, 3, 1))
sketch6.addConstraint(Sketcher.Constraint("Tangent", 3, 2, 0, 1))
sketch6.addConstraint(Sketcher.Constraint("Tangent", 4, 2, 5, 1))
sketch6.addConstraint(Sketcher.Constraint("Tangent", 5, 2, 6, 1))
sketch6.addConstraint(Sketcher.Constraint("Tangent", 6, 2, 7, 1))
sketch6.addConstraint(Sketcher.Constraint("Tangent", 7, 2, 4, 1))
sketch6.addConstraint(Sketcher.Constraint("Tangent", 8, 2, 9, 1))
sketch6.addConstraint(Sketcher.Constraint("Tangent", 9, 2, 10, 1))
sketch6.addConstraint(Sketcher.Constraint("Tangent", 10, 2, 11, 1))
sketch6.addConstraint(Sketcher.Constraint("Tangent", 11, 2, 8, 1))
sketch6.addConstraint(Sketcher.Constraint("Vertical", 0))
sketch6.addConstraint(Sketcher.Constraint("Vertical", 2))
sketch6.addConstraint(Sketcher.Constraint("Vertical", 4))
sketch6.addConstraint(Sketcher.Constraint("Vertical", 6))
sketch6.addConstraint(Sketcher.Constraint("Vertical", 8))
sketch6.addConstraint(Sketcher.Constraint("Vertical", 10))
sketch6.addConstraint(Sketcher.Constraint("Equal", 3, 5))
sketch6.addConstraint(Sketcher.Constraint("Equal", 7, 9))
sketch6.addConstraint(Sketcher.Constraint("Vertical", 3, 3, 5, 3))
sketch6.addConstraint(Sketcher.Constraint("Vertical", 7, 3, 9, 3))
sketch6.addConstraint(Sketcher.Constraint("Equal", 2, 4))
sketch6.addConstraint(Sketcher.Constraint("Equal", 6, 8))
sketch6.addConstraint(Sketcher.Constraint("DistanceY", 5, 3, 1, 3, Q("45 mm")))
sketch6.addConstraint(Sketcher.Constraint("DistanceY", 9, 3, 5, 3, Q("45 mm")))
sketch6.addConstraint(Sketcher.Constraint("DistanceY", 0, 1, 0, 2, Q("9.995 mm")))
sketch6.addConstraint(Sketcher.Constraint("Radius", 1, Q("1.50605 mm")))
sketch6.addConstraint(Sketcher.Constraint("DistanceX", -1, 1, 1, 3, Q("47.028508 mm")))
sketch6.addConstraint(Sketcher.Constraint("DistanceY", -1, 1, 1, 3, Q("51.487685 mm")))
pocket2 = body.newObject("PartDesign::Pocket", "Pocket001")
pocket2.Profile = sketch6
pocket2.Length = 1.5

sketch7 = body.newObject("Sketcher::SketchObject", "Sketch006")
sketch7.AttachmentSupport = (doc.getObject("YZ_Plane"), [""])
sketch7.MapMode = "FlatFace"
sketch7.AttachmentOffset = App.Placement(Vector(0, 0, 100.530059), App.Rotation())
add_polygon(sketch7, [(0, -66.5), (55.9, -66.5), (55.9, -65.5), (1, -65.5), (1, 68.3), (55.9, 68.3), (55.9, 69.3), (0, 69.3)])
sketch7.addConstraint(Sketcher.Constraint("Horizontal", 0))
sketch7.addConstraint(Sketcher.Constraint("Vertical", 1))
sketch7.addConstraint(Sketcher.Constraint("Horizontal", 2))
sketch7.addConstraint(Sketcher.Constraint("Vertical", 3))
sketch7.addConstraint(Sketcher.Constraint("Horizontal", 4))
sketch7.addConstraint(Sketcher.Constraint("Vertical", 5))
sketch7.addConstraint(Sketcher.Constraint("Horizontal", 6))
sketch7.addConstraint(Sketcher.Constraint("Vertical", 7))
sketch7.addConstraint(Sketcher.Constraint("PointOnObject", 6, 2, -2))
sketch7.addConstraint(Sketcher.Constraint("Vertical", 1, 2, 4, 2))
sketch7.addConstraint(Sketcher.Constraint("Equal", 1, 5))
sketch7.addConstraint(Sketcher.Constraint("DistanceY", 1, 1, 1, 2, Q("1 mm")))
sketch7.addConstraint(Sketcher.Constraint("DistanceX", -1, 1, 2, 2, Q("1 mm")))
sketch7.addConstraint(Sketcher.Constraint("DistanceX", 0, 1, 0, 2, Q("55.923333 mm")))
sketch7.addConstraint(Sketcher.Constraint("DistanceY", 3, 1, 3, 2, Q("133.857143 mm")))
sketch7.addConstraint(Sketcher.Constraint("DistanceY", 0, 2, -1, 1, Q("66.547969 mm")))
pad5 = body.newObject("PartDesign::Pad", "Pad004")
pad5.Profile = sketch7
pad5.Length = 54.58

sketch8 = body.newObject("Sketcher::SketchObject", "Sketch007")
sketch8.AttachmentSupport = (doc.getObject("XY_Plane"), [""])
sketch8.MapMode = "FlatFace"
sketch8.AttachmentOffset = App.Placement(Vector(0, 0, -65.547969), App.Rotation())
sketch8.addGeometry(Part.Circle(Vector(126.5, 23.2, 0), Vector(0, 0, 1), 3.5), False)
sketch8.addConstraint(Sketcher.Constraint("Diameter", 0, Q("7 mm")))
sketch8.addConstraint(Sketcher.Constraint("DistanceY", -1, 1, 0, 3, Q("23.246691 mm")))
sketch8.addConstraint(Sketcher.Constraint("DistanceX", -1, 1, 0, 3, Q("126.491327 mm")))
pocket3 = body.newObject("PartDesign::Pocket", "Pocket002")
pocket3.Profile = sketch8
pocket3.Type = "ThroughAll"
pocket3.Midplane = True

sketch9 = body.newObject("Sketcher::SketchObject", "Sketch008")
sketch9.AttachmentSupport = (doc.getObject("XZ_Plane"), [""])
sketch9.MapMode = "FlatFace"
sketch9.AttachmentOffset = App.Placement(Vector(0, 0, -6), App.Rotation())
add_polygon(sketch9, [(8, 11), (8, 41.7), (20, 41.7), (20, 11)])
add_polygon(sketch9, [(-23.3, -0.6), (-23.3, 29.6), (-18.5, 29.6), (-18.5, -0.6)])
sketch9.addConstraint(Sketcher.Constraint("Vertical", 0))
sketch9.addConstraint(Sketcher.Constraint("Horizontal", 1))
sketch9.addConstraint(Sketcher.Constraint("Vertical", 2))
sketch9.addConstraint(Sketcher.Constraint("Horizontal", 3))
sketch9.addConstraint(Sketcher.Constraint("Vertical", 4))
sketch9.addConstraint(Sketcher.Constraint("Horizontal", 5))
sketch9.addConstraint(Sketcher.Constraint("Vertical", 6))
sketch9.addConstraint(Sketcher.Constraint("Horizontal", 7))
sketch9.addConstraint(Sketcher.Constraint("DistanceX", 1, 1, 1, 2, Q("12 mm")))
sketch9.addConstraint(Sketcher.Constraint("DistanceX", 5, 1, 5, 2, Q("4.828509 mm")))
sketch9.addConstraint(Sketcher.Constraint("DistanceY", 0, 1, 0, 2, Q("30.72627 mm")))
sketch9.addConstraint(Sketcher.Constraint("DistanceY", 4, 1, 4, 2, Q("30.231621 mm")))
sketch9.addConstraint(Sketcher.Constraint("DistanceY", -1, 1, 0, 2, Q("41.70579 mm")))
sketch9.addConstraint(Sketcher.Constraint("DistanceY", -1, 1, 4, 2, Q("29.596248 mm")))
sketch9.addConstraint(Sketcher.Constraint("DistanceX", 5, 2, -1, 1, Q("18.505859 mm")))
sketch9.addConstraint(Sketcher.Constraint("DistanceX", -1, 1, 0, 2, Q("7.982227 mm")))
pocket4 = body.newObject("PartDesign::Pocket", "Pocket003")
pocket4.Profile = sketch9
pocket4.Length = 5
pocket4.Reversed = True

sketch10 = body.newObject("Sketcher::SketchObject", "Sketch009")
sketch10.AttachmentSupport = (doc.getObject("YZ_Plane"), [""])
sketch10.MapMode = "FlatFace"
sketch10.AttachmentOffset = App.Placement(Vector(0, 0, 155.110059), App.Rotation())
add_polygon(sketch10, [(56, 69), (0, 69), (0, -67), (56, -67)])
sketch10.addConstraint(Sketcher.Constraint("Horizontal", 0))
sketch10.addConstraint(Sketcher.Constraint("Vertical", 1))
sketch10.addConstraint(Sketcher.Constraint("Horizontal", 2))
sketch10.addConstraint(Sketcher.Constraint("Vertical", 3))
sketch10.addConstraint(Sketcher.Constraint("PointOnObject", 0, 2, -2))
sketch10.addConstraint(Sketcher.Constraint("DistanceX", 0, 2, 0, 1, Q("55.923333 mm")))
sketch10.addConstraint(Sketcher.Constraint("DistanceY", 1, 2, 1, 1, Q("135.857143 mm")))
sketch10.addConstraint(Sketcher.Constraint("DistanceY", 1, 2, -1, 1, Q("66.547969 mm")))
pad6 = body.newObject("PartDesign::Pad", "Pad005")
pad6.Profile = sketch10
pad6.Length = 1

doc.recompute()
